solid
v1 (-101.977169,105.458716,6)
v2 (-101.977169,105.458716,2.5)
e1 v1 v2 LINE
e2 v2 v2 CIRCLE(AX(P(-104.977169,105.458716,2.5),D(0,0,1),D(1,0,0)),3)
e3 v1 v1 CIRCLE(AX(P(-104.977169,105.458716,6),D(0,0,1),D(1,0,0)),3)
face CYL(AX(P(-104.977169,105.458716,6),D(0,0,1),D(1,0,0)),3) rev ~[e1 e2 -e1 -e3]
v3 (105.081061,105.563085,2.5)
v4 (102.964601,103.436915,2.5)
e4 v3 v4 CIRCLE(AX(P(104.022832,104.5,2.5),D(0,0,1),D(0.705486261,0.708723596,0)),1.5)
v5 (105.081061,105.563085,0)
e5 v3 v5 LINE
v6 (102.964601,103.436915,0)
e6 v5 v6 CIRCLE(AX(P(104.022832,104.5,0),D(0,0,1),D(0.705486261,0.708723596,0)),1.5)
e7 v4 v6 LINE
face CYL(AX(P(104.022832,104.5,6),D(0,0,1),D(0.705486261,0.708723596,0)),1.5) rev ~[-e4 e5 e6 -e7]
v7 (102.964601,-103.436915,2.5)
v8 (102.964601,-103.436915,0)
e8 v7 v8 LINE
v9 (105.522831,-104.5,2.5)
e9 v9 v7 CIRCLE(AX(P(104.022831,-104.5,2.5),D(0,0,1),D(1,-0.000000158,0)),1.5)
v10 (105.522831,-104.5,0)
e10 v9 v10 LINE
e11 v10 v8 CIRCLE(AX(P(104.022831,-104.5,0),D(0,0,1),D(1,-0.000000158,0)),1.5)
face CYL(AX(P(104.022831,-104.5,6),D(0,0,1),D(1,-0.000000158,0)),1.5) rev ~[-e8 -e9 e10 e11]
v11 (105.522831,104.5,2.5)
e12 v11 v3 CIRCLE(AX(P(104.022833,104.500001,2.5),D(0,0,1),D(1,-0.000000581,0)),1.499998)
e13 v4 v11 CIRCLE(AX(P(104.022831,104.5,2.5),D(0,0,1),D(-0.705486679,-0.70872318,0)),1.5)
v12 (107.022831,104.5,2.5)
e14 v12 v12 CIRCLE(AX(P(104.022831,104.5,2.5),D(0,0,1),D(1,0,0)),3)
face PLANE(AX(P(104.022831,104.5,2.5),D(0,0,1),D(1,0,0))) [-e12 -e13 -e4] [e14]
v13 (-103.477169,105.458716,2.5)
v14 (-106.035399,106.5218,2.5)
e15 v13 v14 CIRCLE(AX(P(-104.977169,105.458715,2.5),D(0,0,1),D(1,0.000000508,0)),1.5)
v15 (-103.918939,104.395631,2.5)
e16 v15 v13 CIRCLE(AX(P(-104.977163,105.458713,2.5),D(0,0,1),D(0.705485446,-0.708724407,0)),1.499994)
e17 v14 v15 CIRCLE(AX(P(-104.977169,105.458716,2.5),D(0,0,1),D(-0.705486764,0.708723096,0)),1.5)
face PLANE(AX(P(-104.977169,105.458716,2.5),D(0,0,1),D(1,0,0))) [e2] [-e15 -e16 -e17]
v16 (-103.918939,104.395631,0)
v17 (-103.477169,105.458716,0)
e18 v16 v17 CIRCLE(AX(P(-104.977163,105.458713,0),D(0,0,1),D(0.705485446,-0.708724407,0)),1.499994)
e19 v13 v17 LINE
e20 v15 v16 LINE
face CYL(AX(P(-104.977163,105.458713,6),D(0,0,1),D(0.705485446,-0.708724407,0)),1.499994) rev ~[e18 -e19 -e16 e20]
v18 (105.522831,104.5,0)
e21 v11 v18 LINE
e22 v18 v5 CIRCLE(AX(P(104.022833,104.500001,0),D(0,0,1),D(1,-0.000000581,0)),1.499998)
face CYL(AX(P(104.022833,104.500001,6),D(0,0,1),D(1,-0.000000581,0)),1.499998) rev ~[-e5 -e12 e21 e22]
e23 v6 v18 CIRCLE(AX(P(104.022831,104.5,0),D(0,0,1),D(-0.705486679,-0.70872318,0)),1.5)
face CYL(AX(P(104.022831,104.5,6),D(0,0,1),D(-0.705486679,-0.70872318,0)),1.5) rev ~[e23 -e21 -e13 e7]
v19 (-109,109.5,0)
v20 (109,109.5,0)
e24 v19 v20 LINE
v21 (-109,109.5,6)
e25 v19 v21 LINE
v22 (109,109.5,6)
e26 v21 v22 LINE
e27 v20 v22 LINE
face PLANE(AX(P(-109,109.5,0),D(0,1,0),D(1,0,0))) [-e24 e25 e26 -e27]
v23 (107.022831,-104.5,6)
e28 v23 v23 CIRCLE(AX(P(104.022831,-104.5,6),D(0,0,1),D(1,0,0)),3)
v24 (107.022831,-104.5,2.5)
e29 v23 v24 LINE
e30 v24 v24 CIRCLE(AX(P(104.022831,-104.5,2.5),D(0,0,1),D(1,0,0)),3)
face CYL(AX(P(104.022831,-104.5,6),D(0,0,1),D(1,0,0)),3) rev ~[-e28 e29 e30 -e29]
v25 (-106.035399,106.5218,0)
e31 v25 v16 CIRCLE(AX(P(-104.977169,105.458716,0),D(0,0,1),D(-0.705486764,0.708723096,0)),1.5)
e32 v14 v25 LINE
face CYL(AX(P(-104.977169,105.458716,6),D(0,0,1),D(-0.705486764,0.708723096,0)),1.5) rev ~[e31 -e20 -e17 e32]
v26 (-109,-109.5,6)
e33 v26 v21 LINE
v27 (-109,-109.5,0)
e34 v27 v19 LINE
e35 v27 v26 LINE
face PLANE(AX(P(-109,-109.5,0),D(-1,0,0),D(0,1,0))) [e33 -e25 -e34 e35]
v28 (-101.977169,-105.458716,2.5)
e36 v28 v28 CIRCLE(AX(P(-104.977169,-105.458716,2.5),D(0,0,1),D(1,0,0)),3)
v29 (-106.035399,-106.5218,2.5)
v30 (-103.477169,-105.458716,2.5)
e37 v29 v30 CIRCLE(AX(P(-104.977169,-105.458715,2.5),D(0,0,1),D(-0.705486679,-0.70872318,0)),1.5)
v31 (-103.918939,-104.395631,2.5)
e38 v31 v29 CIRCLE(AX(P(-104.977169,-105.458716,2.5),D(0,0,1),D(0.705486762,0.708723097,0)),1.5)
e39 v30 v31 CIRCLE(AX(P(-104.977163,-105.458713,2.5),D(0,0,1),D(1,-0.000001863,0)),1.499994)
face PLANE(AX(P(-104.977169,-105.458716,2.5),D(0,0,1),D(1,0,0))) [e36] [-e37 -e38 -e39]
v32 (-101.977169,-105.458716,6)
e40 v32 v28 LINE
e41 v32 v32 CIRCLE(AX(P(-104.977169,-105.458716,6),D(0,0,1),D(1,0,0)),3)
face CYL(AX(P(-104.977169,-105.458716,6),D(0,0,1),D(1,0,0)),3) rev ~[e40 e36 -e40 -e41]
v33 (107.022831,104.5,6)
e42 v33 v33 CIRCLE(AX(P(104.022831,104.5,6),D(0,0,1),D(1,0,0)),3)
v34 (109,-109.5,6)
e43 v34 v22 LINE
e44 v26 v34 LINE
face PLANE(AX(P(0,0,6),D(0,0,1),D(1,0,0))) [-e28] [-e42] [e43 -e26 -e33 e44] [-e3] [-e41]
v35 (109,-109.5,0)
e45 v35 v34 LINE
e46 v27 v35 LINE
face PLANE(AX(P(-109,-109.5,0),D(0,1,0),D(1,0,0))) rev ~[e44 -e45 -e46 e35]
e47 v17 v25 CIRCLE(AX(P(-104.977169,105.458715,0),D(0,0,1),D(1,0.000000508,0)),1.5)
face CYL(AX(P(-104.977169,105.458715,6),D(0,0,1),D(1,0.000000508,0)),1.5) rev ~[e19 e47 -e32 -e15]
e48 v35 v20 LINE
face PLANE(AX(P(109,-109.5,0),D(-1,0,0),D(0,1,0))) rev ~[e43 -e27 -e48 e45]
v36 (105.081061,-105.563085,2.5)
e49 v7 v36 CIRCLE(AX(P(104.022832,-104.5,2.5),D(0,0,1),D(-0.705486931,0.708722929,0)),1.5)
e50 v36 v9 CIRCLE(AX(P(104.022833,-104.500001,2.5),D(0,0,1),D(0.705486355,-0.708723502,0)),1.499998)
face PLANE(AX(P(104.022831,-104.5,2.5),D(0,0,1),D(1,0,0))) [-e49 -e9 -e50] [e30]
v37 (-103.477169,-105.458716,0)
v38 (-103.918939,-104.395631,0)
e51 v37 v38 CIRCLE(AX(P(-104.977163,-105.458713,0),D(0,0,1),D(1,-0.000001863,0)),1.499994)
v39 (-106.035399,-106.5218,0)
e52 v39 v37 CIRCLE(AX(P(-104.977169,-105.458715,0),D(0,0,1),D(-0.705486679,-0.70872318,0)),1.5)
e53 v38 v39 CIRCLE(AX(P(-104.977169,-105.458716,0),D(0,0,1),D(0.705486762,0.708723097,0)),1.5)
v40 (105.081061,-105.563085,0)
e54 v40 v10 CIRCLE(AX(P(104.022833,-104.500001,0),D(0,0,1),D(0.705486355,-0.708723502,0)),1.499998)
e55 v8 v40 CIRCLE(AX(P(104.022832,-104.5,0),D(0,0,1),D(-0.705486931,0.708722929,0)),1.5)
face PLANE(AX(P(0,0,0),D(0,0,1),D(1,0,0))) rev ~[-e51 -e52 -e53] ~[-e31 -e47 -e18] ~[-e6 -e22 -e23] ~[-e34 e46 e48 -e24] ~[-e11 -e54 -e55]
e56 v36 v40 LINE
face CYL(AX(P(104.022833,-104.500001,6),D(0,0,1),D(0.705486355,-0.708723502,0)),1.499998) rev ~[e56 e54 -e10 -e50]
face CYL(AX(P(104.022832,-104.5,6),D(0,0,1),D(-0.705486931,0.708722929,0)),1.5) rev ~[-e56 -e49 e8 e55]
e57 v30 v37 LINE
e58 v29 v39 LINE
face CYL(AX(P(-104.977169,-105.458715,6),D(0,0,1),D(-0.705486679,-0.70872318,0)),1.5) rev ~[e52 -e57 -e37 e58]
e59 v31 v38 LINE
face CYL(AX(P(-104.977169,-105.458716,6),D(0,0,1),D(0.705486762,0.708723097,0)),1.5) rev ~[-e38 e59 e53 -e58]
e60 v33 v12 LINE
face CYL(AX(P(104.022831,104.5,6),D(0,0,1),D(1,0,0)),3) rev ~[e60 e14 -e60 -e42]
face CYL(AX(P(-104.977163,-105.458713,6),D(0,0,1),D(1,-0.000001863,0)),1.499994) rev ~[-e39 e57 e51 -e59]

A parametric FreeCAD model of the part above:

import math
import FreeCAD as App
import Part
import Sketcher
from FreeCAD import Vector

doc = App.newDocument("Part")
body = doc.addObject("PartDesign::Body", "Body")

# Sketch on XY plane
sketch1 = doc.addObject("Sketcher::SketchObject", "Sketch")
body.addObject(sketch1)
sketch1.AttachmentSupport = (doc.XY_Plane, [""])
sketch1.MapMode = "FlatFace"
sketch1.addGeometry(Part.LineSegment(Vector(-109, 110, 0), Vector(-109, -110, 0)), False)
sketch1.addGeometry(Part.LineSegment(Vector(-109, -110, 0), Vector(109, -110, 0)), False)
sketch1.addGeometry(Part.LineSegment(Vector(109, -110, 0), Vector(109, 110, 0)), False)
sketch1.addGeometry(Part.LineSegment(Vector(109, 110, 0), Vector(-109, 110, 0)), False)
sketch1.addConstraint(Sketcher.Constraint("Coincident", 0, 2, 1, 1))
sketch1.addConstraint(Sketcher.Constraint("Coincident", 1, 2, 2, 1))
sketch1.addConstraint(Sketcher.Constraint("Coincident", 2, 2, 3, 1))
sketch1.addConstraint(Sketcher.Constraint("Coincident", 3, 2, 0, 1))
sketch1.addConstraint(Sketcher.Constraint("Vertical", 0))
sketch1.addConstraint(Sketcher.Constraint("Horizontal", 1))
sketch1.addConstraint(Sketcher.Constraint("Vertical", 2))
sketch1.addConstraint(Sketcher.Constraint("Horizontal", 3))
sketch1.addConstraint(Sketcher.Constraint("Symmetric", 0, 2, 2, 2, -1, 1))
sketch1.addConstraint(Sketcher.Constraint("DistanceX", 1, 1, 1, 2, 218.0))
sketch1.addConstraint(Sketcher.Constraint("DistanceY", 0, 2, 0, 1, 219.0))
pad1 = doc.addObject("PartDesign::Pad", "Pad")
body.addObject(pad1)
pad1.Profile = sketch1
pad1.Length = 6

# Sketch on XY plane
sketch2 = doc.addObject("Sketcher::SketchObject", "Sketch001")
body.addObject(sketch2)
sketch2.AttachmentSupport = (doc.XY_Plane, [""])
sketch2.MapMode = "FlatFace"
sketch2.AttachmentOffset = App.Placement(Vector(0, 0, 6), App.Rotation())
sketch2.addGeometry(Part.ArcOfCircle(Part.Circle(Vector(-105, 105.5, 0), Vector(0, 0, 1), 1.5), math.radians(0), math.radians(135)), False)
sketch2.addGeometry(Part.ArcOfCircle(Part.Circle(Vector(-105, 105.5, 0), Vector(0, 0, 1), 1.5), math.radians(135), math.radians(315)), False)
sketch2.addGeometry(Part.ArcOfCircle(Part.Circle(Vector(-105, 105.5, 0), Vector(0, 0, 1), 1.5), math.radians(-45), math.radians(0)), False)
sketch2.addGeometry(Part.ArcOfCircle(Part.Circle(Vector(104, 104.5, 0), Vector(0, 0, 1), 1.5), math.radians(45), math.radians(225)), False)
sketch2.addGeometry(Part.ArcOfCircle(Part.Circle(Vector(104, 104.5, 0), Vector(0, 0, 1), 1.5), math.radians(-135), math.radians(0)), False)
sketch2.addGeometry(Part.ArcOfCircle(Part.Circle(Vector(104, 104.5, 0), Vector(0, 0, 1), 1.5), math.radians(0), math.radians(45)), False)
sketch2.addGeometry(Part.ArcOfCircle(Part.Circle(Vector(104, -104.5, 0), Vector(0, 0, 1), 1.5), math.radians(0), math.radians(135)), False)
sketch2.addGeometry(Part.ArcOfCircle(Part.Circle(Vector(104, -104.5, 0), Vector(0, 0, 1), 1.5), math.radians(135), math.radians(315)), False)
sketch2.addGeometry(Part.ArcOfCircle(Part.Circle(Vector(104, -104.5, 0), Vector(0, 0, 1), 1.5), math.radians(-45), math.radians(0)), False)
sketch2.addGeometry(Part.ArcOfCircle(Part.Circle(Vector(-105, -105.5, 0), Vector(0, 0, 1), 1.5), math.radians(0), math.radians(45)), False)
sketch2.addGeometry(Part.ArcOfCircle(Part.Circle(Vector(-105, -105.5, 0), Vector(0, 0, 1), 1.5), math.radians(45), math.radians(225)), False)
sketch2.addGeometry(Part.ArcOfCircle(Part.Circle(Vector(-105, -105.5, 0), Vector(0, 0, 1), 1.5), math.radians(-135), math.radians(0)), False)
sketch2.addConstraint(Sketcher.Constraint("Tangent", 0, 2, 1, 1))
sketch2.addConstraint(Sketcher.Constraint("Tangent", 1, 2, 2, 1))
sketch2.addConstraint(Sketcher.Constraint("Tangent", 2, 2, 0, 1))
sketch2.addConstraint(Sketcher.Constraint("Tangent", 3, 2, 4, 1))
sketch2.addConstraint(Sketcher.Constraint("Tangent", 4, 2, 5, 1))
sketch2.addConstraint(Sketcher.Constraint("Tangent", 5, 2, 3, 1))
sketch2.addConstraint(Sketcher.Constraint("Tangent", 6, 2, 7, 1))
sketch2.addConstraint(Sketcher.Constraint("Tangent", 7, 2, 8, 1))
sketch2.addConstraint(Sketcher.Constraint("Tangent", 8, 2, 6, 1))
sketch2.addConstraint(Sketcher.Constraint("Tangent", 9, 2, 10, 1))
sketch2.addConstraint(Sketcher.Constraint("Tangent", 10, 2, 11, 1))
sketch2.addConstraint(Sketcher.Constraint("Tangent", 11, 2, 9, 1))
sketch2.addConstraint(Sketcher.Constraint("Equal", 1, 3))
sketch2.addConstraint(Sketcher.Constraint("Equal", 5, 6))
sketch2.addConstraint(Sketcher.Constraint("Equal", 2, 9))
sketch2.addConstraint(Sketcher.Constraint("Symmetric", 3, 3, 6, 3, -1))
sketch2.addConstraint(Sketcher.Constraint("Symmetric", 0, 3, 9, 3, -1))
sketch2.addConstraint(Sketcher.Constraint("Horizontal", 1, 3, 2, 2))
sketch2.addConstraint(Sketcher.Constraint("Horizontal", 5, 3, 4, 2))
sketch2.addConstraint(Sketcher.Constraint("Horizontal", 7, 3, 8, 2))
sketch2.addConstraint(Sketcher.Constraint("Horizontal", 10, 3, 11, 2))
sketch2.addConstraint(Sketcher.Constraint("Vertical", 3, 2, 6, 2))
sketch2.addConstraint(Sketcher.Constraint("Vertical", 5, 2, 7, 2))
sketch2.addConstraint(Sketcher.Constraint("Vertical", 1, 2, 9, 2))
sketch2.addConstraint(Sketcher.Constraint("Vertical", 0, 2, 10, 2))
sketch2.addConstraint(Sketcher.Constraint("Radius", 0, 1.5))
sketch2.addConstraint(Sketcher.Constraint("DistanceX", 0, 3, 3, 3, 209.0))
sketch2.addConstraint(Sketcher.Constraint("DistanceY", 6, 3, 3, 3, 208.999999))
sketch2.addConstraint(Sketcher.Constraint("DistanceY", 7, 2, 3, 2, 209.0))
sketch2.addConstraint(Sketcher.Constraint("DistanceX", 10, 2, 6, 2, 209.0))
sketch2.addConstraint(Sketcher.Constraint("DistanceX", 0, 2, -1, 1, 106.035399))
sketch2.addConstraint(Sketcher.Constraint("DistanceY", -1, 1, 0, 2, 106.5218))
sketch2.addConstraint(Sketcher.Constraint("DistanceX", 0, 3, -1, 1, 104.977169))
sketch2.addConstraint(Sketcher.Constraint("DistanceX", 1, 2, -1, 1, 103.918939))
pocket1 = doc.addObject("PartDesign::Pocket", "Pocket")
body.addObject(pocket1)
pocket1.Profile = sketch2
pocket1.Type = "ThroughAll"

# Sketch on XY plane
sketch3 = doc.addObject("Sketcher::SketchObject", "Sketch002")
body.addObject(sketch3)
sketch3.AttachmentSupport = (doc.XY_Plane, [""])
sketch3.MapMode = "FlatFace"
sketch3.AttachmentOffset = App.Placement(Vector(0, 0, 6), App.Rotation())
sketch3.addGeometry(Part.Circle(Vector(-105, 105.5, 0), Vector(0, 0, 1), 3), False)
sketch3.addGeometry(Part.Circle(Vector(104, 104.5, 0), Vector(0, 0, 1), 3), False)
sketch3.addGeometry(Part.Circle(Vector(104, -104.5, 0), Vector(0, 0, 1), 3), False)
sketch3.addGeometry(Part.Circle(Vector(-105, -105.5, 0), Vector(0, 0, 1), 3), False)
sketch3.addConstraint(Sketcher.Constraint("Equal", 0, 1))
sketch3.addConstraint(Sketcher.Constraint("Equal", 1, 2))
sketch3.addConstraint(Sketcher.Constraint("Equal", 2, 3))
sketch3.addConstraint(Sketcher.Constraint("Symmetric", 1, 3, 2, 3, -1))
sketch3.addConstraint(Sketcher.Constraint("Symmetric", 0, 3, 3, 3, -1))
sketch3.addConstraint(Sketcher.Constraint("Diameter", 0, 6.0))
sketch3.addConstraint(Sketcher.Constraint("DistanceX", 0, 3, 1, 3, 209.0))
sketch3.addConstraint(Sketcher.Constraint("DistanceY", 2, 3, 1, 3, 209.0))
sketch3.addConstraint(Sketcher.Constraint("DistanceX", 0, 3, -1, 1, 104.977169))
sketch3.addConstraint(Sketcher.Constraint("DistanceY", 3, 3, 0, 3, 210.917432))
pocket2 = doc.addObject("PartDesign::Pocket", "Pocket001")
body.addObject(pocket2)
pocket2.Profile = sketch3
pocket2.Length = 3.5

doc.recompute()
